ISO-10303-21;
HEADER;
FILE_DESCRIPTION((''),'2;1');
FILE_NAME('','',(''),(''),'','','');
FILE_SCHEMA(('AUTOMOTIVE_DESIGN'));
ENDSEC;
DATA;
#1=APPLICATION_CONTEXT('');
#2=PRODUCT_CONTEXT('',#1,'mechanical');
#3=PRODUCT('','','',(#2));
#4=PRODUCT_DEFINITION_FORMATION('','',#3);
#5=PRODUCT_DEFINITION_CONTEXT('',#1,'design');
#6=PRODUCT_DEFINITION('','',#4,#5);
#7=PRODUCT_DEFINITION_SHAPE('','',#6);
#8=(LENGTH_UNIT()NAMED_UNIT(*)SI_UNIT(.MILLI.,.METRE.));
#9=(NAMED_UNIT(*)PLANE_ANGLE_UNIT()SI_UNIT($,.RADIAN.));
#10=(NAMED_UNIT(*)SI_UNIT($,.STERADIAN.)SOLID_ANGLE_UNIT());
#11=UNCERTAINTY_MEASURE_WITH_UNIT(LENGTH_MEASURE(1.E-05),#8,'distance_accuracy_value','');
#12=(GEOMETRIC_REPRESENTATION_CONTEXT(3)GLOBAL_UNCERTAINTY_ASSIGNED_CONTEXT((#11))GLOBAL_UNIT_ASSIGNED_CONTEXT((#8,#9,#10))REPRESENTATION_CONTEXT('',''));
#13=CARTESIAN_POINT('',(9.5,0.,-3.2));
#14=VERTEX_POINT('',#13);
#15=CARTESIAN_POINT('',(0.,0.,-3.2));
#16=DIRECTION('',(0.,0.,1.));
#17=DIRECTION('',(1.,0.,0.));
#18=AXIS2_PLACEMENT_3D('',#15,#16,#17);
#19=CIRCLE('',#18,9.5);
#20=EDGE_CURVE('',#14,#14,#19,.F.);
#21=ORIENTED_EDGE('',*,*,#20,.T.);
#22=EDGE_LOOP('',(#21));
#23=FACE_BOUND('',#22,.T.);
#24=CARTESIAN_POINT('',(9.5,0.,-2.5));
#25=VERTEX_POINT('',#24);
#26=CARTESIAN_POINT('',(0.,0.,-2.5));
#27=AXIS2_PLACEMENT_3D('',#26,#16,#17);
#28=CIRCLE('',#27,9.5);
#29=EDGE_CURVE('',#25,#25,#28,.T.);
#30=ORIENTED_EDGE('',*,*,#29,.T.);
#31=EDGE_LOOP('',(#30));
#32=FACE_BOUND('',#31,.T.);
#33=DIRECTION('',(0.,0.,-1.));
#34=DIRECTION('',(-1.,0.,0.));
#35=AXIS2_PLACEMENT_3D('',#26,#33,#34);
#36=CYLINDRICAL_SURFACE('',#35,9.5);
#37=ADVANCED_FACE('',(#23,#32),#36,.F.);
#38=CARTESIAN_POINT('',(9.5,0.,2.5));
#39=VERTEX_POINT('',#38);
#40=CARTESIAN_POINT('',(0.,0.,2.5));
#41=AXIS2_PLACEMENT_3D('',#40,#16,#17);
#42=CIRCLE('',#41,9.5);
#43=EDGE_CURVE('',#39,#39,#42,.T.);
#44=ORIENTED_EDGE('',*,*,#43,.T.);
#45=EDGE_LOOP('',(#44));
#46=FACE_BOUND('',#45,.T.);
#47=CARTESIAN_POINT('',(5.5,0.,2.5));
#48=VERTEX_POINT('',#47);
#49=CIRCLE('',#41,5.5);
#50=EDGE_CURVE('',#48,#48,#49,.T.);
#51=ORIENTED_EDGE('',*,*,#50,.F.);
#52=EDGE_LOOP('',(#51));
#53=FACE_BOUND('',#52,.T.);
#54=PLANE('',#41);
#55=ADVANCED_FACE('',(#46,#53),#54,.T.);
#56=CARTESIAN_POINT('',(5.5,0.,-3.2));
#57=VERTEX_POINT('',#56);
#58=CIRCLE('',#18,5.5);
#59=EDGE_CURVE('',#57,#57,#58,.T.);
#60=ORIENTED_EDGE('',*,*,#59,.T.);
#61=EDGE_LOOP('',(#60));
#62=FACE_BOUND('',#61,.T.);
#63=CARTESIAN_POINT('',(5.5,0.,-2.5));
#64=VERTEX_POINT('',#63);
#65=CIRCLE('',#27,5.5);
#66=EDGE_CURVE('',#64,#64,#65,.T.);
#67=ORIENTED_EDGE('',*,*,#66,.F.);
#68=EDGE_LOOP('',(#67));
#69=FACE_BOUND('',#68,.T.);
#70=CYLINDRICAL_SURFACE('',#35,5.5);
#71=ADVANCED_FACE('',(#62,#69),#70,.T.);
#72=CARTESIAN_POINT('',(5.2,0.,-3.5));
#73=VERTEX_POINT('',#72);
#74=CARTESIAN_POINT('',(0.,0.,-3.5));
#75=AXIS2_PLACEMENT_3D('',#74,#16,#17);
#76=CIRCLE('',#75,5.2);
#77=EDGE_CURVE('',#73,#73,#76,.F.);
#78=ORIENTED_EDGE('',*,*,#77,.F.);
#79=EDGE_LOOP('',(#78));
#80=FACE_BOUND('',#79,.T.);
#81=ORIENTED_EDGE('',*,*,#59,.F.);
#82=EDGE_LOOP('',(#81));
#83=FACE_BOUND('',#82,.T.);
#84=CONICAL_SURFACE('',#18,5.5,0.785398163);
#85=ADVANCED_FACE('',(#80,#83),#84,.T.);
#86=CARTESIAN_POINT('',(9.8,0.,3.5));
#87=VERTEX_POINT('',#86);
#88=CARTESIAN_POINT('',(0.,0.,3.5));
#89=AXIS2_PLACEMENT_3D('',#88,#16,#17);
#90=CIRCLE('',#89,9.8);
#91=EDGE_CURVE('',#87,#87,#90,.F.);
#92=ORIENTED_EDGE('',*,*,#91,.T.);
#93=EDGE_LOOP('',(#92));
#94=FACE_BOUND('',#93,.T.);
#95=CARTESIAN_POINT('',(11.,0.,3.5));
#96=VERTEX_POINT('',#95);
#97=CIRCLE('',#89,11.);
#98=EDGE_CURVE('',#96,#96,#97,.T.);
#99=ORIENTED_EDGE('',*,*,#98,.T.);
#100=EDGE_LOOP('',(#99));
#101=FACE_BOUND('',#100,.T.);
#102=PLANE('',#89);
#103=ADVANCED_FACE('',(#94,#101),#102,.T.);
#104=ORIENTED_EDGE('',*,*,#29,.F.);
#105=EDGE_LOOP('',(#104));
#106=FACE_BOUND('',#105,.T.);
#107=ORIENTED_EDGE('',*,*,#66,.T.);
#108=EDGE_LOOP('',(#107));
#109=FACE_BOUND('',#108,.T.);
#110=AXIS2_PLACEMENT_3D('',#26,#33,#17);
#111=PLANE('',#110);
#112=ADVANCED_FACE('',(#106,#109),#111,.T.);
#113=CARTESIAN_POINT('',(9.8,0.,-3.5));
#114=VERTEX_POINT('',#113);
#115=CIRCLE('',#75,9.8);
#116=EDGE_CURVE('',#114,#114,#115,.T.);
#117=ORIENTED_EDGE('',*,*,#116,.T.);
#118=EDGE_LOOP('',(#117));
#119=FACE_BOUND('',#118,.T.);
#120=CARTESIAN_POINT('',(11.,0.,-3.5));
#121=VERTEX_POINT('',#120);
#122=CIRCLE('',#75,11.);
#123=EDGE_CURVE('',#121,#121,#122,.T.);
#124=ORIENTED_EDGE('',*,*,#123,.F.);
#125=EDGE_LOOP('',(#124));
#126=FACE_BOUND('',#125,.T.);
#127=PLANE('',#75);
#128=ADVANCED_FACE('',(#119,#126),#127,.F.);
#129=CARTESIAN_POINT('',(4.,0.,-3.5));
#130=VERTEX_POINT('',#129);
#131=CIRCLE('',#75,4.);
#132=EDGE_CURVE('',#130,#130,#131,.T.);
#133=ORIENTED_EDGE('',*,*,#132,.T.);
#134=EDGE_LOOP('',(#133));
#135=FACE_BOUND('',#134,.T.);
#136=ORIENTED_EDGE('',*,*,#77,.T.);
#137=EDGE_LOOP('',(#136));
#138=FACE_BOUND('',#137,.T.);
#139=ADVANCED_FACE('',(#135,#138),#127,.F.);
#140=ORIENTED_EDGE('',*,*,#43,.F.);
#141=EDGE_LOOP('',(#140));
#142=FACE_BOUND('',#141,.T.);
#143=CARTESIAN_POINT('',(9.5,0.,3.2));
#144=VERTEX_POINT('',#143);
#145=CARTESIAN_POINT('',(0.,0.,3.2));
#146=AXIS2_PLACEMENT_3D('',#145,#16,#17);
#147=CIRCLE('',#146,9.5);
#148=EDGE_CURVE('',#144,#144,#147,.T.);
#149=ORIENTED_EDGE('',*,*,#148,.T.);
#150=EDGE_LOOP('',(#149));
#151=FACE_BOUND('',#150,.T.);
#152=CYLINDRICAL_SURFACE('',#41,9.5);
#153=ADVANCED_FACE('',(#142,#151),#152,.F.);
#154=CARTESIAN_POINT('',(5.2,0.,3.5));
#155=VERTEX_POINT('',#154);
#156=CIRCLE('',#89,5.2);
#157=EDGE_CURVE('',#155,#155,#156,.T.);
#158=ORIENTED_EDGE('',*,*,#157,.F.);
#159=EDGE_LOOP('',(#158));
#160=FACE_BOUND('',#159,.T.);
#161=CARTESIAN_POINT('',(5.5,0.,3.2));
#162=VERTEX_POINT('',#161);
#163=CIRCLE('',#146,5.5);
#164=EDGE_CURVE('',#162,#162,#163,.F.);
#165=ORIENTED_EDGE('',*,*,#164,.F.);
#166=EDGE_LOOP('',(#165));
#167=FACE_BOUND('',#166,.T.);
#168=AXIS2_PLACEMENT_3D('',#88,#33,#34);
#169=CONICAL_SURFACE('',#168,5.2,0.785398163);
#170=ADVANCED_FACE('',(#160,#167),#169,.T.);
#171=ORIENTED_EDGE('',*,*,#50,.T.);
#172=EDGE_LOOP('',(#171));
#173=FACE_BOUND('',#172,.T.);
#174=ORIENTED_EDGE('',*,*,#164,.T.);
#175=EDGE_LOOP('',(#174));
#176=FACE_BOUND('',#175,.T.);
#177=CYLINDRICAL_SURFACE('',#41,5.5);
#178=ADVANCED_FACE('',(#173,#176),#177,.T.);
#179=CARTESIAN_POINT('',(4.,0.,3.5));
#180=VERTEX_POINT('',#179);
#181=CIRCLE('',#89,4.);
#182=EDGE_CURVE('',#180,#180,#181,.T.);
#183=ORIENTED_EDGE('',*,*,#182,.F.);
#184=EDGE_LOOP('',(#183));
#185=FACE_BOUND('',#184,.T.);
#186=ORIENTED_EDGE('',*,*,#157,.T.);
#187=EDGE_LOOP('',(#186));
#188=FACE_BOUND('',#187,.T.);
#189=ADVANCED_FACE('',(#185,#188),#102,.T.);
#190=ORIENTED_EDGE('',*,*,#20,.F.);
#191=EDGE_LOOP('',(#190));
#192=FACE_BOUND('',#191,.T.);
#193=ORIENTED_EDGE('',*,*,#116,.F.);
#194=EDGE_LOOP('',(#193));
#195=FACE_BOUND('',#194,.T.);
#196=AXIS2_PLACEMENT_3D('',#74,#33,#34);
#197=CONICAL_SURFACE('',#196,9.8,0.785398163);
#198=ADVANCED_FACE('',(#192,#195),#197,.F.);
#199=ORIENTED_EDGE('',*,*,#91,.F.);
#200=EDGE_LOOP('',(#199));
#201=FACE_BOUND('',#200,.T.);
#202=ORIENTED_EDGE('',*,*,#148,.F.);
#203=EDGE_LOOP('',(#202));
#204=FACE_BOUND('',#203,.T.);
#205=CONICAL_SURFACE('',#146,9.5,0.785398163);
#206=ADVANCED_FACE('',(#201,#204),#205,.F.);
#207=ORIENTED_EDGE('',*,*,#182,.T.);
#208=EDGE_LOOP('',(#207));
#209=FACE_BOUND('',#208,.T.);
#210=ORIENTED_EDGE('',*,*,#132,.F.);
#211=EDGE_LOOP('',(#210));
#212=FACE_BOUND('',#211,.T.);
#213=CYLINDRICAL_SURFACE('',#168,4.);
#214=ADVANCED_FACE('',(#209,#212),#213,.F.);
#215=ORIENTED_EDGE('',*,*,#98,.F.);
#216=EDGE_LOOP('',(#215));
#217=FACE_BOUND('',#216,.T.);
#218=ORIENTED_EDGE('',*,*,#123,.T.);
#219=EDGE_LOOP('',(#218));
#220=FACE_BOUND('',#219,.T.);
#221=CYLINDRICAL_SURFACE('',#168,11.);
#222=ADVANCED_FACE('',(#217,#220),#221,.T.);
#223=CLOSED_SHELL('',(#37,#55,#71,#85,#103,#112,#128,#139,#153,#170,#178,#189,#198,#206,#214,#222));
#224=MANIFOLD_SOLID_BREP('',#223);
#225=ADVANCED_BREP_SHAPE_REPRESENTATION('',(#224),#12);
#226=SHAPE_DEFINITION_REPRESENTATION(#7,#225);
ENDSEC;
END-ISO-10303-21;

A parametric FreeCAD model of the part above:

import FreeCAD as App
import Part
import Sketcher
Q = App.Units.Quantity


def edges_at(feature, points):
    """Names of the edges that pass closest to the given points."""
    edges = feature.Shape.Edges
    near = lambda p: min(range(len(edges)), key=lambda i: edges[i].distToShape(Part.Vertex(*p))[0])
    return sorted({f"Edge{near(p) + 1}" for p in points})

doc = App.newDocument("Part")
body = doc.addObject("PartDesign::Body", "Body")

sketch1 = body.newObject("Sketcher::SketchObject", "Sketch")
sketch1.AttachmentSupport = (doc.getObject("XY_Plane"), [""])
sketch1.MapMode = "FlatFace"
sketch1.addGeometry([
    Part.Circle(App.Vector(0, 0, 0), App.Vector(0, 0, 1), 11),
    Part.Circle(App.Vector(0, 0, 0), App.Vector(0, 0, 1), 4),
], False)
sketch1.addConstraint([
    Sketcher.Constraint("Coincident", 0, 3, -1, 1),
    Sketcher.Constraint("Coincident", 1, 3, -1, 1),
    Sketcher.Constraint("Diameter", 0, Q("22 mm")),
    Sketcher.Constraint("Diameter", 1, Q("8 mm")),
])
pad1 = body.newObject("PartDesign::Pad", "Pad")
pad1.Profile = sketch1
pad1.Length = 7
pad1.Midplane = True

sketch2 = body.newObject("Sketcher::SketchObject", "Sketch001")
sketch2.AttachmentSupport = (doc.getObject("XY_Plane"), [""])
sketch2.MapMode = "FlatFace"
sketch2.AttachmentOffset = App.Placement(App.Vector(0, 0, 3.5), App.Rotation())
sketch2.addGeometry([
    Part.Circle(App.Vector(0, 0, 0), App.Vector(0, 0, 1), 10),
    Part.Circle(App.Vector(0, 0, 0), App.Vector(0, 0, 1), 6),
], False)
sketch2.addConstraint([
    Sketcher.Constraint("Coincident", 0, 3, -1, 1),
    Sketcher.Constraint("Coincident", 1, 3, -1, 1),
    Sketcher.Constraint("Diameter", 0, Q("19 mm")),
    Sketcher.Constraint("Diameter", 1, Q("11 mm")),
])
pocket1 = body.newObject("PartDesign::Pocket", "Pocket")
pocket1.Profile = sketch2
pocket1.Length = 1
doc.recompute()

mirrored = body.newObject("PartDesign::Mirrored", "Mirrored")
mirrored.Originals = [pocket1]
mirrored.MirrorPlane = (doc.getObject("XY_Plane"), [""])
body.Tip = mirrored
doc.recompute()

chamfer = body.newObject("PartDesign::Chamfer", "Chamfer")
chamfer.Base = (mirrored, edges_at(mirrored, [
    (-9.5, 0, 3.5),
    (-5.5, 0, 3.5),
    (-5.5, 0, -3.5),
    (-9.5, 0, -3.5),
]))
chamfer.Size = 0.3

doc.recompute()
